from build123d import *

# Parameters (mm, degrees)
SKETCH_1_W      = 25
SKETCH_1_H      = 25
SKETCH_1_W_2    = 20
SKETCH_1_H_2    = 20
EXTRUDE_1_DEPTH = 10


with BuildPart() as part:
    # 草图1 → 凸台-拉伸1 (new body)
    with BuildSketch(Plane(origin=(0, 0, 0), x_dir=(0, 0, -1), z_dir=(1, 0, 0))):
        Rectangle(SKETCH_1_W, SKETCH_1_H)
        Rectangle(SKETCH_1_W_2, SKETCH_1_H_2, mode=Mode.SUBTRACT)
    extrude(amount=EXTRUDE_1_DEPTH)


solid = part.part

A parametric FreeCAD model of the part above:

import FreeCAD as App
import Part
import Sketcher
from FreeCAD import Vector


def add_polygon(sketch, points):
    """Adds a closed chain of lines whose ends are joined by coincident constraints."""
    first, n = sketch.GeometryCount, len(points)
    for a, b in zip(points, points[1:] + points[:1]):
        sketch.addGeometry(Part.LineSegment(App.Vector(*a, 0), App.Vector(*b, 0)), False)
    for i in range(n):
        sketch.addConstraint(Sketcher.Constraint("Coincident", first + i, 2, first + (i + 1) % n, 1))

doc = App.newDocument("Part")
body = doc.addObject("PartDesign::Body", "Body")

# Sketch on YZ plane
sketch1 = body.newObject("Sketcher::SketchObject", "Sketch")
sketch1.AttachmentSupport = (doc.getObject("YZ_Plane"), [""])
sketch1.MapMode = "FlatFace"
add_polygon(sketch1, [(12, 12), (-12, 12), (-12, -12), (12, -12)])  # lines 0-3
add_polygon(sketch1, [(-10, -10), (-10, 10), (10, 10), (10, -10)])  # lines 4-7
sketch1.addConstraint([
    Sketcher.Constraint("Horizontal", 0),
    Sketcher.Constraint("Vertical", 1),
    Sketcher.Constraint("Horizontal", 2),
    Sketcher.Constraint("Vertical", 3),
    Sketcher.Constraint("Vertical", 4),
    Sketcher.Constraint("Horizontal", 5),
    Sketcher.Constraint("Vertical", 6),
    Sketcher.Constraint("Horizontal", 7),
    Sketcher.Constraint("Symmetric", 0, 2, 2, 2, -1, 1),
    Sketcher.Constraint("Symmetric", 4, 2, 6, 2, -1, 1),
    Sketcher.Constraint("Equal", 2, 1),
    Sketcher.Constraint("Equal", 7, 4),
    Sketcher.Constraint("DistanceX", 0, 2, 0, 1, 25.0),
    Sketcher.Constraint("DistanceX", 5, 1, 5, 2, 20.0),
])
pad1 = body.newObject("PartDesign::Pad", "Pad")
pad1.Profile = sketch1
pad1.Length = 10

doc.recompute()
